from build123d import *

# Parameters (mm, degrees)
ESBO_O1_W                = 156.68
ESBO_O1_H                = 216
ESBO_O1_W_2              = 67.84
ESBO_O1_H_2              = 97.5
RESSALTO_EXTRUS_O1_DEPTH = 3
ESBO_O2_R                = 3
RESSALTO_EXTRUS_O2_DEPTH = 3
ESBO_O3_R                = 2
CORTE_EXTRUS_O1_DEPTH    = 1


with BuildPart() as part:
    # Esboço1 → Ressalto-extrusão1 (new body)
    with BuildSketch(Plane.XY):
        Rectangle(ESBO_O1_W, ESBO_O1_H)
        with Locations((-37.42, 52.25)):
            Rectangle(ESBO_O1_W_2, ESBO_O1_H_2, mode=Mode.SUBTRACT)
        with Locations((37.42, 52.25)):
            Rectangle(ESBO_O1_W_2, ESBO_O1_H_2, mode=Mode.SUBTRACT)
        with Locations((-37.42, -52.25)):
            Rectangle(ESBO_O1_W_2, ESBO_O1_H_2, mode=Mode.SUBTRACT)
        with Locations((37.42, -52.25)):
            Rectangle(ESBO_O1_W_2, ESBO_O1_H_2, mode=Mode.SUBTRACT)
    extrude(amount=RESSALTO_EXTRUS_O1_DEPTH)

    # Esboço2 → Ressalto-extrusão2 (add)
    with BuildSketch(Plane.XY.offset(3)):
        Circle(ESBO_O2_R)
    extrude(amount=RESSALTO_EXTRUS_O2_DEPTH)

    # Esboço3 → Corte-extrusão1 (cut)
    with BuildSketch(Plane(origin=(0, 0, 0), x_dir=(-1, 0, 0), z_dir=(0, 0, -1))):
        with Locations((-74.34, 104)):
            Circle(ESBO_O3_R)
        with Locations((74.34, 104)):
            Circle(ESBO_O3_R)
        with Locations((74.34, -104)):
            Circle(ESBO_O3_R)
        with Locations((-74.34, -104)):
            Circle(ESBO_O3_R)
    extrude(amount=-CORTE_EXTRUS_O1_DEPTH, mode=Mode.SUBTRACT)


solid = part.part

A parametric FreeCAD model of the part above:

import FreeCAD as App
import Part
import Sketcher

V = App.Vector
Q = App.Units.Quantity

doc = App.newDocument("Part")
params = doc.addObject("Spreadsheet::Sheet", "Params")
for row, (alias, value) in enumerate([
    ("sketch1_height", "216 mm"),
    ("sketch1_height2", "97.5 mm"),
    ("sketch1_width", "156.68 mm"),
    ("pad1_length", "3 mm"),
    ("sketch2_diameter", "6 mm"),
    ("pad2_length", "3 mm"),
    ("sketch3_diameter", "4 mm"),
    ("pocket1_length", "1 mm"),
], start=1):
    params.set(f"A{row}", alias)
    params.set(f"B{row}", "=" + value)
    params.setAlias(f"B{row}", alias)

body = doc.addObject("PartDesign::Body", "Body")

# Sketch on XY plane
sketch1 = doc.addObject("Sketcher::SketchObject", "Sketch")
body.addObject(sketch1)
sketch1.AttachmentSupport = (doc.XY_Plane, [""])
sketch1.MapMode = "FlatFace"
sketch1.addGeometry([
    Part.LineSegment(V(-78, 108, 0), V(-78, -108, 0)),  # 0
    Part.LineSegment(V(-78, -108, 0), V(78, -108, 0)),  # 1
    Part.LineSegment(V(78, -108, 0), V(78, 108, 0)),  # 2
    Part.LineSegment(V(78, 108, 0), V(-78, 108, 0)),  # 3
    Part.LineSegment(V(-4, -101, 0), V(-71, -101, 0)),  # 4
    Part.LineSegment(V(-71, -101, 0), V(-71, -4, 0)),  # 5
    Part.LineSegment(V(-71, -4, 0), V(-4, -4, 0)),  # 6
    Part.LineSegment(V(-4, -4, 0), V(-4, -101, 0)),  # 7
    Part.LineSegment(V(71, -101, 0), V(4, -101, 0)),  # 8
    Part.LineSegment(V(4, -101, 0), V(4, -4, 0)),  # 9
    Part.LineSegment(V(4, -4, 0), V(71, -4, 0)),  # 10
    Part.LineSegment(V(71, -4, 0), V(71, -101, 0)),  # 11
    Part.LineSegment(V(-4, 4, 0), V(-71, 4, 0)),  # 12
    Part.LineSegment(V(-71, 4, 0), V(-71, 101, 0)),  # 13
    Part.LineSegment(V(-71, 101, 0), V(-4, 101, 0)),  # 14
    Part.LineSegment(V(-4, 101, 0), V(-4, 4, 0)),  # 15
    Part.LineSegment(V(71, 4, 0), V(4, 4, 0)),  # 16
    Part.LineSegment(V(4, 4, 0), V(4, 101, 0)),  # 17
    Part.LineSegment(V(4, 101, 0), V(71, 101, 0)),  # 18
    Part.LineSegment(V(71, 101, 0), V(71, 4, 0)),  # 19
], False)
sketch1.addConstraint([
    Sketcher.Constraint("Coincident", 0, 2, 1, 1),
    Sketcher.Constraint("Coincident", 1, 2, 2, 1),
    Sketcher.Constraint("Coincident", 2, 2, 3, 1),
    Sketcher.Constraint("Coincident", 3, 2, 0, 1),
    Sketcher.Constraint("Coincident", 4, 2, 5, 1),
    Sketcher.Constraint("Coincident", 5, 2, 6, 1),
    Sketcher.Constraint("Coincident", 6, 2, 7, 1),
    Sketcher.Constraint("Coincident", 7, 2, 4, 1),
    Sketcher.Constraint("Coincident", 8, 2, 9, 1),
    Sketcher.Constraint("Coincident", 9, 2, 10, 1),
    Sketcher.Constraint("Coincident", 10, 2, 11, 1),
    Sketcher.Constraint("Coincident", 11, 2, 8, 1),
    Sketcher.Constraint("Coincident", 12, 2, 13, 1),
    Sketcher.Constraint("Coincident", 13, 2, 14, 1),
    Sketcher.Constraint("Coincident", 14, 2, 15, 1),
    Sketcher.Constraint("Coincident", 15, 2, 12, 1),
    Sketcher.Constraint("Coincident", 16, 2, 17, 1),
    Sketcher.Constraint("Coincident", 17, 2, 18, 1),
    Sketcher.Constraint("Coincident", 18, 2, 19, 1),
    Sketcher.Constraint("Coincident", 19, 2, 16, 1),
    Sketcher.Constraint("Vertical", 0),
    Sketcher.Constraint("Horizontal", 1),
    Sketcher.Constraint("Vertical", 2),
    Sketcher.Constraint("Horizontal", 3),
    Sketcher.Constraint("Horizontal", 4),
    Sketcher.Constraint("Vertical", 5),
    Sketcher.Constraint("Horizontal", 6),
    Sketcher.Constraint("Vertical", 7),
    Sketcher.Constraint("Horizontal", 8),
    Sketcher.Constraint("Vertical", 9),
    Sketcher.Constraint("Horizontal", 10),
    Sketcher.Constraint("Vertical", 11),
    Sketcher.Constraint("Horizontal", 12),
    Sketcher.Constraint("Vertical", 13),
    Sketcher.Constraint("Horizontal", 14),
    Sketcher.Constraint("Vertical", 15),
    Sketcher.Constraint("Horizontal", 16),
    Sketcher.Constraint("Vertical", 17),
    Sketcher.Constraint("Horizontal", 18),
    Sketcher.Constraint("Vertical", 19),
    Sketcher.Constraint("Symmetric", 0, 2, 2, 2, -1, 1),
    Sketcher.Constraint("Symmetric", 10, 2, 12, 2, -1, 1),
    Sketcher.Constraint("Symmetric", 8, 2, 14, 2, -1, 1),
    Sketcher.Constraint("Symmetric", 6, 2, 16, 2, -1, 1),
    Sketcher.Constraint("Symmetric", 4, 2, 18, 2, -1, 1),
    Sketcher.Constraint("Symmetric", 7, 2, 8, 2, -2),
    Sketcher.Constraint("Symmetric", 5, 2, 10, 2, -2),
    Sketcher.Constraint("DistanceY", 0, 2, 0, 1, Q("216 mm")),
    Sketcher.Constraint("DistanceY", 5, 1, 5, 2, Q("97.5 mm")),
    Sketcher.Constraint("DistanceY", 4, 2, -1, 1, Q("101 mm")),
    Sketcher.Constraint("DistanceX", 0, 2, 4, 2, Q("7 mm")),
    Sketcher.Constraint("DistanceX", 7, 2, 8, 2, Q("7 mm")),
    Sketcher.Constraint("DistanceX", 1, 1, 1, 2, Q("156.68 mm")),
])
sketch1.setExpression("Constraints[47]", "Params.sketch1_height")
sketch1.setExpression("Constraints[48]", "Params.sketch1_height2")
sketch1.setExpression("Constraints[52]", "Params.sketch1_width")
pad1 = doc.addObject("PartDesign::Pad", "Pad")
body.addObject(pad1)
pad1.Profile = sketch1
pad1.setExpression("Length", "Params.pad1_length")

# Sketch on XY plane
sketch2 = doc.addObject("Sketcher::SketchObject", "Sketch001")
body.addObject(sketch2)
sketch2.AttachmentSupport = (doc.XY_Plane, [""])
sketch2.MapMode = "FlatFace"
sketch2.AttachmentOffset = App.Placement(V(0, 0, 3), App.Rotation())
sketch2.addGeometry(Part.Circle(V(0, 0, 0), V(0, 0, 1), 3), False)
sketch2.addConstraint([
    Sketcher.Constraint("Coincident", 0, 3, -1, 1),
    Sketcher.Constraint("Diameter", 0, Q("6 mm")),
])
sketch2.setExpression("Constraints[1]", "Params.sketch2_diameter")
pad2 = doc.addObject("PartDesign::Pad", "Pad001")
body.addObject(pad2)
pad2.Profile = sketch2
pad2.setExpression("Length", "Params.pad2_length")

# Sketch on XY plane
sketch3 = doc.addObject("Sketcher::SketchObject", "Sketch002")
body.addObject(sketch3)
sketch3.AttachmentSupport = (doc.XY_Plane, [""])
sketch3.MapMode = "FlatFace"
sketch3.addGeometry([
    Part.Circle(V(74.3, 104, 0), V(0, 0, 1), 2),
    Part.Circle(V(-74.3, 104, 0), V(0, 0, 1), 2),
    Part.Circle(V(-74.3, -104, 0), V(0, 0, 1), 2),
    Part.Circle(V(74.3, -104, 0), V(0, 0, 1), 2),
], False)
sketch3.addConstraint([
    Sketcher.Constraint("Equal", 0, 1),
    Sketcher.Constraint("Equal", 1, 2),
    Sketcher.Constraint("Equal", 2, 3),
    Sketcher.Constraint("Symmetric", 0, 3, 2, 3, -1, 1),
    Sketcher.Constraint("Symmetric", 1, 3, 3, 3, -1, 1),
    Sketcher.Constraint("Symmetric", 0, 3, 1, 3, -2),
    Sketcher.Constraint("Diameter", 0, Q("4 mm")),
    Sketcher.Constraint("DistanceY", -1, 1, 0, 3, Q("104 mm")),
    Sketcher.Constraint("DistanceX", -1, 1, 0, 3, Q("74.34 mm")),
])
sketch3.setExpression("Constraints[6]", "Params.sketch3_diameter")
pocket1 = doc.addObject("PartDesign::Pocket", "Pocket")
body.addObject(pocket1)
pocket1.Profile = sketch3
pocket1.setExpression("Length", "Params.pocket1_length")
pocket1.Reversed = True

doc.recompute()
